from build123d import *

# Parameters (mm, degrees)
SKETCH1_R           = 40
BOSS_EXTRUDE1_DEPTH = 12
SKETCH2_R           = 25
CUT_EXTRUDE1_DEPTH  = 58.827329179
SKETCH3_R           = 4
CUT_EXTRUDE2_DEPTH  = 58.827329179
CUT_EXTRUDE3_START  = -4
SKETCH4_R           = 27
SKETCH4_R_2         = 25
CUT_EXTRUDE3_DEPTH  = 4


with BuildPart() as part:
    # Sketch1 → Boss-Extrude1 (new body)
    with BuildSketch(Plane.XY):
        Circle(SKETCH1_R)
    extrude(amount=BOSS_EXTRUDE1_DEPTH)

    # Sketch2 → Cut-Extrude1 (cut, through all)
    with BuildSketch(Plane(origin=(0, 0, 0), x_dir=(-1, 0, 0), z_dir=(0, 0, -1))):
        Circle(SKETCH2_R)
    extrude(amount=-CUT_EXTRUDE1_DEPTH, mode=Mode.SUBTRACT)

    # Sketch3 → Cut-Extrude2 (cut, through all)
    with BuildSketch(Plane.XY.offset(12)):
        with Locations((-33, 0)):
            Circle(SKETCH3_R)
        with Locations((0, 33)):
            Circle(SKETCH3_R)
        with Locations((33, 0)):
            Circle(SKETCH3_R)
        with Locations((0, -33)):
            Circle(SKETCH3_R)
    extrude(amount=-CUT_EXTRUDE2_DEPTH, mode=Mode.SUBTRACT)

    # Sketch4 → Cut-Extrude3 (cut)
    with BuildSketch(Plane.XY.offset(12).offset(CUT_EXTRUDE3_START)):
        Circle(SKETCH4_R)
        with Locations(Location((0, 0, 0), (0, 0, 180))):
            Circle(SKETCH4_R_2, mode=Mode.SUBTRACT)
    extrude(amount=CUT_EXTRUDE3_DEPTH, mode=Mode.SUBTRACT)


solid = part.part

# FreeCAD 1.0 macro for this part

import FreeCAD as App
import Part
import Sketcher

doc = App.newDocument("Part")
body = doc.addObject("PartDesign::Body", "Body")

# Sketch on XY plane
sketch1 = doc.addObject("Sketcher::SketchObject", "Sketch")
body.addObject(sketch1)
sketch1.AttachmentSupport = (doc.XY_Plane, [""])
sketch1.MapMode = "FlatFace"
sketch1.addGeometry(Part.Circle(App.Vector(0, 0, 0), App.Vector(0, 0, 1), 40), False)
sketch1.addConstraint([
    Sketcher.Constraint("Coincident", 0, 3, -1, 1),
    Sketcher.Constraint("Diameter", 0, 80.0),
])
pad1 = doc.addObject("PartDesign::Pad", "Pad")
body.addObject(pad1)
pad1.Profile = sketch1
pad1.Length = 12

# Sketch on XY plane
sketch2 = doc.addObject("Sketcher::SketchObject", "Sketch001")
body.addObject(sketch2)
sketch2.AttachmentSupport = (doc.XY_Plane, [""])
sketch2.MapMode = "FlatFace"
sketch2.addGeometry(Part.Circle(App.Vector(0, 0, 0), App.Vector(0, 0, 1), 25), False)
sketch2.addConstraint([
    Sketcher.Constraint("Coincident", 0, 3, -1, 1),
    Sketcher.Constraint("Diameter", 0, 50.0),
])
pocket1 = doc.addObject("PartDesign::Pocket", "Pocket")
body.addObject(pocket1)
pocket1.Profile = sketch2
pocket1.Type = "ThroughAll"
pocket1.Reversed = True

# Sketch on XY plane
sketch3 = doc.addObject("Sketcher::SketchObject", "Sketch002")
body.addObject(sketch3)
sketch3.AttachmentSupport = (doc.XY_Plane, [""])
sketch3.MapMode = "FlatFace"
sketch3.AttachmentOffset = App.Placement(App.Vector(0, 0, 12), App.Rotation())
sketch3.addGeometry([
    Part.Circle(App.Vector(-33, 0, 0), App.Vector(0, 0, 1), 4),
    Part.Circle(App.Vector(0, 33, 0), App.Vector(0, 0, 1), 4),
    Part.Circle(App.Vector(33, 0, 0), App.Vector(0, 0, 1), 4),
    Part.Circle(App.Vector(0, -33, 0), App.Vector(0, 0, 1), 4),
], False)
sketch3.addConstraint([
    Sketcher.Constraint("Equal", 0, 1),
    Sketcher.Constraint("Equal", 1, 2),
    Sketcher.Constraint("Equal", 2, 3),
    Sketcher.Constraint("Symmetric", 0, 3, 2, 3, -1, 1),
    Sketcher.Constraint("Symmetric", 1, 3, 3, 3, -1, 1),
    Sketcher.Constraint("PointOnObject", 0, 3, -1),
    Sketcher.Constraint("PointOnObject", 1, 3, -2),
    Sketcher.Constraint("Diameter", 0, 8.0),
    Sketcher.Constraint("DistanceX", 0, 3, -1, 1, 33.0),
    Sketcher.Constraint("DistanceY", -1, 1, 1, 3, 33.0),
])
pocket2 = doc.addObject("PartDesign::Pocket", "Pocket001")
body.addObject(pocket2)
pocket2.Profile = sketch3
pocket2.Type = "ThroughAll"

# Sketch on XY plane
sketch4 = doc.addObject("Sketcher::SketchObject", "Sketch003")
body.addObject(sketch4)
sketch4.AttachmentSupport = (doc.XY_Plane, [""])
sketch4.MapMode = "FlatFace"
sketch4.AttachmentOffset = App.Placement(App.Vector(0, 0, 8), App.Rotation())
sketch4.addGeometry([
    Part.Circle(App.Vector(0, 0, 0), App.Vector(0, 0, 1), 27),
    Part.Circle(App.Vector(0, 0, 0), App.Vector(0, 0, 1), 25),
], False)
sketch4.addConstraint([
    Sketcher.Constraint("Coincident", 0, 3, -1, 1),
    Sketcher.Constraint("Coincident", 1, 3, -1, 1),
    Sketcher.Constraint("Diameter", 0, 54.0),
    Sketcher.Constraint("Diameter", 1, 50.0),
])
pocket3 = doc.addObject("PartDesign::Pocket", "Pocket002")
body.addObject(pocket3)
pocket3.Profile = sketch4
pocket3.Length = 4
pocket3.Reversed = True

doc.recompute()
